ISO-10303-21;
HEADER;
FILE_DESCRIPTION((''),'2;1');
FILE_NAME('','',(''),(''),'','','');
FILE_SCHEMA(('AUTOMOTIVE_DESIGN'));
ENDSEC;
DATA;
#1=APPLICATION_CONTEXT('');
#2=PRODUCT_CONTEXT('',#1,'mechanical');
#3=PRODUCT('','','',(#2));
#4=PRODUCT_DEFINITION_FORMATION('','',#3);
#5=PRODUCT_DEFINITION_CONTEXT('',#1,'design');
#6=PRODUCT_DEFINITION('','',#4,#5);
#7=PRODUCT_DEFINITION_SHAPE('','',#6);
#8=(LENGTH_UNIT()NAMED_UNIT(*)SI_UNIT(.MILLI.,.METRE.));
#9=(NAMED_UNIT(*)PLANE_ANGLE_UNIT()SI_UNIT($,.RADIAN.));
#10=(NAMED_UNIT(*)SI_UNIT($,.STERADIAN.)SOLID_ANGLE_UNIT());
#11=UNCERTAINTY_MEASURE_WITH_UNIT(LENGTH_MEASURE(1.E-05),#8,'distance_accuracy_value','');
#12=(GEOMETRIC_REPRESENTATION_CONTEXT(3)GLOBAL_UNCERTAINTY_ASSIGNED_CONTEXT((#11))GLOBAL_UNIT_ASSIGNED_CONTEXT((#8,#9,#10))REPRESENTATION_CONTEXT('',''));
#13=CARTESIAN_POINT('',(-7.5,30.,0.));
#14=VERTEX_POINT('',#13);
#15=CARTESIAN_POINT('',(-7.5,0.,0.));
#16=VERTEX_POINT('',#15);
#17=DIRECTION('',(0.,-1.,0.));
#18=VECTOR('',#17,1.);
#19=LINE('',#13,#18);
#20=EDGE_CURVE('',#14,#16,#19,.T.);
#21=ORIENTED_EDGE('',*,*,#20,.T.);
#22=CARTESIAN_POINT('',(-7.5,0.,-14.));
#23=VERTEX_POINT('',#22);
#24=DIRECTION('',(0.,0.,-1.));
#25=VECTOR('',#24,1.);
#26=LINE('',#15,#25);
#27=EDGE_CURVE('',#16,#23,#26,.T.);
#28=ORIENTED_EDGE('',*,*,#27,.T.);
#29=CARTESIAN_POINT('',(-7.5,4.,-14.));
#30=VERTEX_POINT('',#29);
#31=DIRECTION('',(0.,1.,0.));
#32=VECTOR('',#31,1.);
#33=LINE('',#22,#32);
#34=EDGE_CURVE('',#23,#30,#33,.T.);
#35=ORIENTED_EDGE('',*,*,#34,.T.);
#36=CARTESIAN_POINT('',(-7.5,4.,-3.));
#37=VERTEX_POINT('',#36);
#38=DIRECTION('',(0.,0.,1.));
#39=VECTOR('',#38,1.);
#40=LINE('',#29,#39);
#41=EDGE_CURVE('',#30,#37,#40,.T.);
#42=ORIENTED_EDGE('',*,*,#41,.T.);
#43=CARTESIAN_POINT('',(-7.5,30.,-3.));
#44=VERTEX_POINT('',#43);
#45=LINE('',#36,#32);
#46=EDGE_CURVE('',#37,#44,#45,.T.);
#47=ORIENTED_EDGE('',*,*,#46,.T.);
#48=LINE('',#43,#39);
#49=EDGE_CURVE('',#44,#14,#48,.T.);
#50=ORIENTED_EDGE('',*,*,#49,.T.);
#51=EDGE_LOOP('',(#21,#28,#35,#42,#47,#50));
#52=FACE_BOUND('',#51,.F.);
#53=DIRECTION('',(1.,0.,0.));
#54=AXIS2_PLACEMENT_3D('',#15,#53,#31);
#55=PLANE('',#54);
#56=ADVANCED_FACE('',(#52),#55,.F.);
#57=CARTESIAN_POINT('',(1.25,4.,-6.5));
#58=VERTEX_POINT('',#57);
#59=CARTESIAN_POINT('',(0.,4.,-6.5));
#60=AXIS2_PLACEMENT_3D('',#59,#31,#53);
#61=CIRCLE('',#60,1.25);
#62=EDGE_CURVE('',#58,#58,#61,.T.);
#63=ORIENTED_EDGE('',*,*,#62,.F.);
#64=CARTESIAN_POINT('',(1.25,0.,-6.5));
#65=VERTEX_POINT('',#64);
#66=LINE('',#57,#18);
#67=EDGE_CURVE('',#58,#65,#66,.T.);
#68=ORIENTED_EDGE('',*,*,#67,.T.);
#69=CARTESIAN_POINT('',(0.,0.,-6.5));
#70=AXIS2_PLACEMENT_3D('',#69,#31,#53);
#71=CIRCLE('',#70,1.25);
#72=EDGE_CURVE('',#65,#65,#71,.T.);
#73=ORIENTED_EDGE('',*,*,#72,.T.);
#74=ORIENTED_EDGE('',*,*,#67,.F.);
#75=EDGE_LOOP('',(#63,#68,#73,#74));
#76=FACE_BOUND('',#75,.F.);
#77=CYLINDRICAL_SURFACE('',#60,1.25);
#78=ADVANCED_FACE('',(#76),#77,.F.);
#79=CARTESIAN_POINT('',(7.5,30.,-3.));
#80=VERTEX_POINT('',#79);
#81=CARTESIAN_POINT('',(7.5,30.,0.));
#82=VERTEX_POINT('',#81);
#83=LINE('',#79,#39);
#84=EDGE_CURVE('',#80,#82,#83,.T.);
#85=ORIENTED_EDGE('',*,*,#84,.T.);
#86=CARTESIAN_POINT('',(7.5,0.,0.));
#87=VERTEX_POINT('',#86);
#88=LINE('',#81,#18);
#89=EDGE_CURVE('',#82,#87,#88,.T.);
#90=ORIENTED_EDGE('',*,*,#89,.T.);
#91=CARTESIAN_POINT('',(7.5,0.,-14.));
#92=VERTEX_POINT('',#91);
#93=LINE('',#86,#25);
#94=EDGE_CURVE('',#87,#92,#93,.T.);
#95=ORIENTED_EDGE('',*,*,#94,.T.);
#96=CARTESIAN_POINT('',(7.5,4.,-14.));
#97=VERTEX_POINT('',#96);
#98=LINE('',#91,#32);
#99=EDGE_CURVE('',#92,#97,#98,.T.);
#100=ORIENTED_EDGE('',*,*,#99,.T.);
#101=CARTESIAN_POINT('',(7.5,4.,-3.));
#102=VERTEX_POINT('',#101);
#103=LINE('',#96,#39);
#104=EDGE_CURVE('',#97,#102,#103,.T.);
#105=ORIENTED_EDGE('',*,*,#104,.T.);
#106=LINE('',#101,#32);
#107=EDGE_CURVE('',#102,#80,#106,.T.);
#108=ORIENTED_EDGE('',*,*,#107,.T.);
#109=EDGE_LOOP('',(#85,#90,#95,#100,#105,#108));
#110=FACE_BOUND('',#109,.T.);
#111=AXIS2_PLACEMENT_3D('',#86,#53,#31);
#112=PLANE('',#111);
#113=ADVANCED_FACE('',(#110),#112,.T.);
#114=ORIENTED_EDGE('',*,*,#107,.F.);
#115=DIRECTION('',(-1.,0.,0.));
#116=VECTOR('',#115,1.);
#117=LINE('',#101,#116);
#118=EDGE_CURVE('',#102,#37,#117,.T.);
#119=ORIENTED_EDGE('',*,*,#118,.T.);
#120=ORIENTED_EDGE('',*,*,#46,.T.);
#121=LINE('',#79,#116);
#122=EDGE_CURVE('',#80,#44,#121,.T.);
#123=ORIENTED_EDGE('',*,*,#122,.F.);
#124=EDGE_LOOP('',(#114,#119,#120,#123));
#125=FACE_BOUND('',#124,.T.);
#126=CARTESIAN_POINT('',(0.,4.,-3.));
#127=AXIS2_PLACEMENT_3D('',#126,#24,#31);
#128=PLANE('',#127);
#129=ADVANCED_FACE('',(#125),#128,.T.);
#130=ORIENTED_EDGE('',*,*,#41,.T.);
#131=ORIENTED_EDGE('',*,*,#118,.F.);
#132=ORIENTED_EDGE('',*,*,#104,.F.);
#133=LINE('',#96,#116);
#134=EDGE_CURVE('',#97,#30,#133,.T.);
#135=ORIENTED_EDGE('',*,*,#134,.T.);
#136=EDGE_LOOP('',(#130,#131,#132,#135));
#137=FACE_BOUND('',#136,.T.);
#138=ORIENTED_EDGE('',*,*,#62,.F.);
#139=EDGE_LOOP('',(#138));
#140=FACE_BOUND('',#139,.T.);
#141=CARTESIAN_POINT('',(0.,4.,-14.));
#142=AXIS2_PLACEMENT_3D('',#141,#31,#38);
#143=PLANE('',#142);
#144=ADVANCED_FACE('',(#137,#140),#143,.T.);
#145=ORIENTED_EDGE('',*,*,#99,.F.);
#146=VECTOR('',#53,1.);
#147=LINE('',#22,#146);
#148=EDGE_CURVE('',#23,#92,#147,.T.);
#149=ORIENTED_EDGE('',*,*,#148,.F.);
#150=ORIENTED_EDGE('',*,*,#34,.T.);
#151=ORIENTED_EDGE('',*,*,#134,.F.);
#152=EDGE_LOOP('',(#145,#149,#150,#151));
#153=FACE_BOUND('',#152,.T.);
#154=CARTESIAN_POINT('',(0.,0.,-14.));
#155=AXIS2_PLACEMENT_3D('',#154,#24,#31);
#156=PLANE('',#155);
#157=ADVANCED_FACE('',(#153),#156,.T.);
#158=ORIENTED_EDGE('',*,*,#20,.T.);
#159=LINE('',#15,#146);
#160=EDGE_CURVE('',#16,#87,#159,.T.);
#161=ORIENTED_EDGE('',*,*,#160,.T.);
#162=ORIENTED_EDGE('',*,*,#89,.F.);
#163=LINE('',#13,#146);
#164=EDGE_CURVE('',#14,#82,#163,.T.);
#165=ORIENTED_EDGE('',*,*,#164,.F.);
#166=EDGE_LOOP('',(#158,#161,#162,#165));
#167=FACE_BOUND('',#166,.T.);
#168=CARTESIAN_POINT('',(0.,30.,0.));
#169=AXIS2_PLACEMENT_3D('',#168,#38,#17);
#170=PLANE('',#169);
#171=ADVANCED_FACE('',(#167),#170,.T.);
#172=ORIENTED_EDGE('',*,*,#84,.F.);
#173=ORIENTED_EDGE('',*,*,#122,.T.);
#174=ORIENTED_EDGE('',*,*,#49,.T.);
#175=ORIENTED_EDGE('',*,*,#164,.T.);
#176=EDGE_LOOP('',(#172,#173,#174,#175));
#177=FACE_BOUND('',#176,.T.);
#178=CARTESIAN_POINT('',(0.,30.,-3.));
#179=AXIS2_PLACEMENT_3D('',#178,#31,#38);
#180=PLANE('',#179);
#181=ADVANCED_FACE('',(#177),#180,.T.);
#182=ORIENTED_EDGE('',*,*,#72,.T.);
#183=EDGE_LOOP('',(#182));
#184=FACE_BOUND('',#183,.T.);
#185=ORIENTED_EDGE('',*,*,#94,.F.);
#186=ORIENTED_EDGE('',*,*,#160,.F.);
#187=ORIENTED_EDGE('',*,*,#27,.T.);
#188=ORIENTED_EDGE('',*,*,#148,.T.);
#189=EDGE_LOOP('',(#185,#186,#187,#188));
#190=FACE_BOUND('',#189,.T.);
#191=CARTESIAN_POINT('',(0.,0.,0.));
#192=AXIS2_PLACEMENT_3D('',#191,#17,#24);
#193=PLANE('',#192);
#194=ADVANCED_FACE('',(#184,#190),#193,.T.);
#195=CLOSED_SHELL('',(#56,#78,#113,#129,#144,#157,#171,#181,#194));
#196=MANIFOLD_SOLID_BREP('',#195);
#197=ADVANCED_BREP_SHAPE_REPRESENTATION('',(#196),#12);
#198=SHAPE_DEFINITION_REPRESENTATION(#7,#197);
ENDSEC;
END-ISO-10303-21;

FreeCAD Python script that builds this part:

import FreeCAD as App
import Part
import Sketcher
from FreeCAD import Vector

doc = App.newDocument("Part")
body = doc.addObject("PartDesign::Body", "Body")

# Sketch on YZ plane
sketch1 = body.newObject("Sketcher::SketchObject", "Sketch")
sketch1.AttachmentSupport = (doc.getObject("YZ_Plane"), [""])
sketch1.MapMode = "FlatFace"
sketch1.addGeometry(Part.LineSegment(Vector(30, -3, 0), Vector(30, 0, 0)), False)
sketch1.addGeometry(Part.LineSegment(Vector(30, 0, 0), Vector(0, 0, 0)), False)
sketch1.addGeometry(Part.LineSegment(Vector(0, 0, 0), Vector(0, -14, 0)), False)
sketch1.addGeometry(Part.LineSegment(Vector(0, -14, 0), Vector(4, -14, 0)), False)
sketch1.addGeometry(Part.LineSegment(Vector(4, -14, 0), Vector(4, -3, 0)), False)
sketch1.addGeometry(Part.LineSegment(Vector(4, -3, 0), Vector(30, -3, 0)), False)
sketch1.addConstraint(Sketcher.Constraint("Coincident", 0, 2, 1, 1))
sketch1.addConstraint(Sketcher.Constraint("Coincident", 1, 2, 2, 1))
sketch1.addConstraint(Sketcher.Constraint("Coincident", 2, 2, 3, 1))
sketch1.addConstraint(Sketcher.Constraint("Coincident", 3, 2, 4, 1))
sketch1.addConstraint(Sketcher.Constraint("Coincident", 4, 2, 5, 1))
sketch1.addConstraint(Sketcher.Constraint("Coincident", 5, 2, 0, 1))
sketch1.addConstraint(Sketcher.Constraint("Vertical", 0))
sketch1.addConstraint(Sketcher.Constraint("Horizontal", 1))
sketch1.addConstraint(Sketcher.Constraint("Vertical", 2))
sketch1.addConstraint(Sketcher.Constraint("Horizontal", 3))
sketch1.addConstraint(Sketcher.Constraint("Vertical", 4))
sketch1.addConstraint(Sketcher.Constraint("Horizontal", 5))
sketch1.addConstraint(Sketcher.Constraint("Coincident", 1, 2, -1, 1))
sketch1.addConstraint(Sketcher.Constraint("DistanceX", 1, 2, 1, 1, 30.0))
sketch1.addConstraint(Sketcher.Constraint("DistanceX", 3, 1, 3, 2, 4.0))
sketch1.addConstraint(Sketcher.Constraint("DistanceY", 0, 1, 0, 2, 3.0))
sketch1.addConstraint(Sketcher.Constraint("DistanceY", 2, 2, 2, 1, 14.0))
pad1 = body.newObject("PartDesign::Pad", "Pad")
pad1.Profile = sketch1
pad1.Length = 15
pad1.Midplane = True

# Sketch on XZ plane
sketch2 = body.newObject("Sketcher::SketchObject", "Sketch001")
sketch2.AttachmentSupport = (doc.getObject("XZ_Plane"), [""])
sketch2.MapMode = "FlatFace"
sketch2.AttachmentOffset = App.Placement(Vector(0, 0, -4), App.Rotation())
sketch2.addGeometry(Part.Circle(Vector(0, -6.5, 0), Vector(0, 0, 1), 1.2), False)
sketch2.addConstraint(Sketcher.Constraint("PointOnObject", 0, 3, -2))
sketch2.addConstraint(Sketcher.Constraint("Diameter", 0, 2.5))
sketch2.addConstraint(Sketcher.Constraint("DistanceY", 0, 3, -1, 1, 6.5))
pocket1 = body.newObject("PartDesign::Pocket", "Pocket")
pocket1.Profile = sketch2
pocket1.Type = "ThroughAll"
pocket1.Reversed = True

doc.recompute()
